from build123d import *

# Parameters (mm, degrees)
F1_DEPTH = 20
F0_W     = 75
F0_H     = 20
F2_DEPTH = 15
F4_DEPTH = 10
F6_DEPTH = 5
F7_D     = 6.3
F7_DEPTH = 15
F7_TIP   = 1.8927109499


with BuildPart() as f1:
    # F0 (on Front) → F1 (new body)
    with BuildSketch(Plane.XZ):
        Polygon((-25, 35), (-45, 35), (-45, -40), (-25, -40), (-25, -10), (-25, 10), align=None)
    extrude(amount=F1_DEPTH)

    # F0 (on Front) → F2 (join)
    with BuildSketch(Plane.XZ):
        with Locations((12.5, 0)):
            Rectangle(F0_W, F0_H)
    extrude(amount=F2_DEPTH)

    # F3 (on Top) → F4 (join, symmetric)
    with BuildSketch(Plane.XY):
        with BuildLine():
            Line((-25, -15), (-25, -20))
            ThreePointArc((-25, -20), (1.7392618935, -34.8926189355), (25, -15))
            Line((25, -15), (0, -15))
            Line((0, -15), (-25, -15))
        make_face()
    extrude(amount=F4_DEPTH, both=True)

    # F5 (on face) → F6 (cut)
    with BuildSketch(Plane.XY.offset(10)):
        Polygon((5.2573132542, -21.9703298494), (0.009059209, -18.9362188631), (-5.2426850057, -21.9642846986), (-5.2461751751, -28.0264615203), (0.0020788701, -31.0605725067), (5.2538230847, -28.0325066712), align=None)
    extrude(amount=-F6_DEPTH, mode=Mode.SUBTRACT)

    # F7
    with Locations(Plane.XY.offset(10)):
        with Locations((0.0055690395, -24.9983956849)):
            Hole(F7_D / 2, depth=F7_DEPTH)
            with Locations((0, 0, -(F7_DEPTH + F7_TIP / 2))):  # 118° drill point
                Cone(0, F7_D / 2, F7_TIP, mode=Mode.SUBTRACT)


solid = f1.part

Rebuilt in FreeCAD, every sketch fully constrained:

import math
import FreeCAD as App
import Part
import Sketcher
from FreeCAD import Vector
Q = App.Units.Quantity


def add_polygon(sketch, points):
    """Adds a closed chain of lines whose ends are joined by coincident constraints."""
    first, n = sketch.GeometryCount, len(points)
    for a, b in zip(points, points[1:] + points[:1]):
        sketch.addGeometry(Part.LineSegment(App.Vector(*a, 0), App.Vector(*b, 0)), False)
    for i in range(n):
        sketch.addConstraint(Sketcher.Constraint("Coincident", first + i, 2, first + (i + 1) % n, 1))

doc = App.newDocument("Part")
body = doc.addObject("PartDesign::Body", "Body")

sketch1 = doc.addObject("Sketcher::SketchObject", "Sketch")
body.addObject(sketch1)
sketch1.AttachmentSupport = (doc.XZ_Plane, [""])
sketch1.MapMode = "FlatFace"
add_polygon(sketch1, [(-25, 35), (-45, 35), (-45, -40), (-25, -40)])
sketch1.addConstraint(Sketcher.Constraint("Horizontal", 0))
sketch1.addConstraint(Sketcher.Constraint("Vertical", 1))
sketch1.addConstraint(Sketcher.Constraint("Horizontal", 2))
sketch1.addConstraint(Sketcher.Constraint("Vertical", 3))
sketch1.addConstraint(Sketcher.Constraint("DistanceX", 0, 2, 0, 1, Q("20 mm")))
sketch1.addConstraint(Sketcher.Constraint("DistanceY", 1, 2, 1, 1, Q("75 mm")))
sketch1.addConstraint(Sketcher.Constraint("DistanceX", 0, 2, -1, 1, Q("45 mm")))
sketch1.addConstraint(Sketcher.Constraint("DistanceY", -1, 1, 0, 2, Q("35 mm")))
pad1 = doc.addObject("PartDesign::Pad", "Pad")
body.addObject(pad1)
pad1.Profile = sketch1
pad1.Length = 20

sketch2 = doc.addObject("Sketcher::SketchObject", "Sketch001")
body.addObject(sketch2)
sketch2.AttachmentSupport = (doc.XZ_Plane, [""])
sketch2.MapMode = "FlatFace"
add_polygon(sketch2, [(-25, 10), (-25, -10), (50, -10), (50, 10)])
sketch2.addConstraint(Sketcher.Constraint("Vertical", 0))
sketch2.addConstraint(Sketcher.Constraint("Horizontal", 1))
sketch2.addConstraint(Sketcher.Constraint("Vertical", 2))
sketch2.addConstraint(Sketcher.Constraint("Horizontal", 3))
sketch2.addConstraint(Sketcher.Constraint("DistanceX", 1, 1, 1, 2, Q("75 mm")))
sketch2.addConstraint(Sketcher.Constraint("DistanceY", 0, 2, 0, 1, Q("20 mm")))
sketch2.addConstraint(Sketcher.Constraint("DistanceX", 0, 2, -1, 1, Q("25 mm")))
sketch2.addConstraint(Sketcher.Constraint("DistanceY", 0, 2, -1, 1, Q("10 mm")))
pad2 = doc.addObject("PartDesign::Pad", "Pad001")
body.addObject(pad2)
pad2.Profile = sketch2
pad2.Length = 15

sketch3 = doc.addObject("Sketcher::SketchObject", "Sketch002")
body.addObject(sketch3)
sketch3.AttachmentSupport = (doc.XY_Plane, [""])
sketch3.MapMode = "FlatFace"
sketch3.addGeometry(Part.LineSegment(Vector(-25, -15, 0), Vector(-25, -20, 0)), False)
sketch3.addGeometry(Part.ArcOfCircle(Part.Circle(Vector(-0.927108, -8.228918, 0), Vector(0, 0, 1), 26.796688), math.radians(-153.942446), math.radians(-14.636368)), False)
sketch3.addGeometry(Part.LineSegment(Vector(25, -15, 0), Vector(-25, -15, 0)), False)
sketch3.addConstraint(Sketcher.Constraint("Coincident", 0, 2, 1, 1))
sketch3.addConstraint(Sketcher.Constraint("Coincident", 1, 2, 2, 1))
sketch3.addConstraint(Sketcher.Constraint("Coincident", 2, 2, 0, 1))
sketch3.addConstraint(Sketcher.Constraint("Vertical", 0))
sketch3.addConstraint(Sketcher.Constraint("Horizontal", 2))
sketch3.addConstraint(Sketcher.Constraint("DistanceX", 2, 2, 2, 1, Q("50 mm")))
sketch3.addConstraint(Sketcher.Constraint("DistanceY", 0, 2, 0, 1, Q("5 mm")))
sketch3.addConstraint(Sketcher.Constraint("DistanceX", 0, 2, -1, 1, Q("25 mm")))
sketch3.addConstraint(Sketcher.Constraint("DistanceY", 0, 2, -1, 1, Q("20 mm")))
sketch3.addConstraint(Sketcher.Constraint("Radius", 1, Q("26.796688 mm")))
pad3 = doc.addObject("PartDesign::Pad", "Pad002")
body.addObject(pad3)
pad3.Profile = sketch3
pad3.Length = 20
pad3.Midplane = True

sketch4 = doc.addObject("Sketcher::SketchObject", "Sketch003")
body.addObject(sketch4)
sketch4.AttachmentSupport = (doc.XY_Plane, [""])
sketch4.MapMode = "FlatFace"
sketch4.AttachmentOffset = App.Placement(Vector(0, 0, 10), App.Rotation())
add_polygon(sketch4, [(5.257313, -21.97033), (0.009059, -18.936219), (-5.242685, -21.964285), (-5.246175, -28.026462), (0.002079, -31.060573), (5.253823, -28.032507)])
sketch4.addConstraint(Sketcher.Constraint("Parallel", 0, 3))
sketch4.addConstraint(Sketcher.Constraint("Parallel", 1, 4))
sketch4.addConstraint(Sketcher.Constraint("Parallel", 2, 5))
sketch4.addConstraint(Sketcher.Constraint("Equal", 0, 1))
sketch4.addConstraint(Sketcher.Constraint("Equal", 1, 2))
sketch4.addConstraint(Sketcher.Constraint("Equal", 2, 3))
sketch4.addConstraint(Sketcher.Constraint("DistanceX", 2, 2, 4, 2, Q("10.499998 mm")))
sketch4.addConstraint(Sketcher.Constraint("DistanceX", -1, 1, 0, 2, Q("0.009059 mm")))
sketch4.addConstraint(Sketcher.Constraint("DistanceY", 0, 2, -1, 1, Q("18.936219 mm")))
sketch4.addConstraint(Sketcher.Constraint("DistanceY", 2, 2, -1, 1, Q("28.026462 mm")))
sketch4.addConstraint(Sketcher.Constraint("DistanceX", -1, 1, 3, 2, Q("0.002079 mm")))
sketch4.addConstraint(Sketcher.Constraint("DistanceY", 5, 2, -1, 1, Q("21.97033 mm")))
pocket1 = doc.addObject("PartDesign::Pocket", "Pocket")
body.addObject(pocket1)
pocket1.Profile = sketch4
pocket1.Length = 5

sketch5 = doc.addObject("Sketcher::SketchObject", "Sketch004")
body.addObject(sketch5)
sketch5.AttachmentSupport = (doc.XY_Plane, [""])
sketch5.MapMode = "FlatFace"
sketch5.AttachmentOffset = App.Placement(Vector(0, 0, 10), App.Rotation())
sketch5.addGeometry(Part.Circle(Vector(0.005569, -24.998396, 0), Vector(0, 0, 1), 3.15), False)
sketch5.addConstraint(Sketcher.Constraint("Diameter", 0, Q("6.3 mm")))
sketch5.addConstraint(Sketcher.Constraint("DistanceX", -1, 1, 0, 3, Q("0.005569 mm")))
sketch5.addConstraint(Sketcher.Constraint("DistanceY", 0, 3, -1, 1, Q("24.998396 mm")))
doc.recompute()
hole = doc.addObject("PartDesign::Hole", "Hole")
body.addObject(hole)
hole.Profile = sketch5
hole.ThreadType = "None"
hole.Diameter = 6.3
hole.DepthType = "Dimension"
hole.Depth = 15
hole.DrillPoint = "Angled"
hole.DrillPointAngle = 118

doc.recompute()
